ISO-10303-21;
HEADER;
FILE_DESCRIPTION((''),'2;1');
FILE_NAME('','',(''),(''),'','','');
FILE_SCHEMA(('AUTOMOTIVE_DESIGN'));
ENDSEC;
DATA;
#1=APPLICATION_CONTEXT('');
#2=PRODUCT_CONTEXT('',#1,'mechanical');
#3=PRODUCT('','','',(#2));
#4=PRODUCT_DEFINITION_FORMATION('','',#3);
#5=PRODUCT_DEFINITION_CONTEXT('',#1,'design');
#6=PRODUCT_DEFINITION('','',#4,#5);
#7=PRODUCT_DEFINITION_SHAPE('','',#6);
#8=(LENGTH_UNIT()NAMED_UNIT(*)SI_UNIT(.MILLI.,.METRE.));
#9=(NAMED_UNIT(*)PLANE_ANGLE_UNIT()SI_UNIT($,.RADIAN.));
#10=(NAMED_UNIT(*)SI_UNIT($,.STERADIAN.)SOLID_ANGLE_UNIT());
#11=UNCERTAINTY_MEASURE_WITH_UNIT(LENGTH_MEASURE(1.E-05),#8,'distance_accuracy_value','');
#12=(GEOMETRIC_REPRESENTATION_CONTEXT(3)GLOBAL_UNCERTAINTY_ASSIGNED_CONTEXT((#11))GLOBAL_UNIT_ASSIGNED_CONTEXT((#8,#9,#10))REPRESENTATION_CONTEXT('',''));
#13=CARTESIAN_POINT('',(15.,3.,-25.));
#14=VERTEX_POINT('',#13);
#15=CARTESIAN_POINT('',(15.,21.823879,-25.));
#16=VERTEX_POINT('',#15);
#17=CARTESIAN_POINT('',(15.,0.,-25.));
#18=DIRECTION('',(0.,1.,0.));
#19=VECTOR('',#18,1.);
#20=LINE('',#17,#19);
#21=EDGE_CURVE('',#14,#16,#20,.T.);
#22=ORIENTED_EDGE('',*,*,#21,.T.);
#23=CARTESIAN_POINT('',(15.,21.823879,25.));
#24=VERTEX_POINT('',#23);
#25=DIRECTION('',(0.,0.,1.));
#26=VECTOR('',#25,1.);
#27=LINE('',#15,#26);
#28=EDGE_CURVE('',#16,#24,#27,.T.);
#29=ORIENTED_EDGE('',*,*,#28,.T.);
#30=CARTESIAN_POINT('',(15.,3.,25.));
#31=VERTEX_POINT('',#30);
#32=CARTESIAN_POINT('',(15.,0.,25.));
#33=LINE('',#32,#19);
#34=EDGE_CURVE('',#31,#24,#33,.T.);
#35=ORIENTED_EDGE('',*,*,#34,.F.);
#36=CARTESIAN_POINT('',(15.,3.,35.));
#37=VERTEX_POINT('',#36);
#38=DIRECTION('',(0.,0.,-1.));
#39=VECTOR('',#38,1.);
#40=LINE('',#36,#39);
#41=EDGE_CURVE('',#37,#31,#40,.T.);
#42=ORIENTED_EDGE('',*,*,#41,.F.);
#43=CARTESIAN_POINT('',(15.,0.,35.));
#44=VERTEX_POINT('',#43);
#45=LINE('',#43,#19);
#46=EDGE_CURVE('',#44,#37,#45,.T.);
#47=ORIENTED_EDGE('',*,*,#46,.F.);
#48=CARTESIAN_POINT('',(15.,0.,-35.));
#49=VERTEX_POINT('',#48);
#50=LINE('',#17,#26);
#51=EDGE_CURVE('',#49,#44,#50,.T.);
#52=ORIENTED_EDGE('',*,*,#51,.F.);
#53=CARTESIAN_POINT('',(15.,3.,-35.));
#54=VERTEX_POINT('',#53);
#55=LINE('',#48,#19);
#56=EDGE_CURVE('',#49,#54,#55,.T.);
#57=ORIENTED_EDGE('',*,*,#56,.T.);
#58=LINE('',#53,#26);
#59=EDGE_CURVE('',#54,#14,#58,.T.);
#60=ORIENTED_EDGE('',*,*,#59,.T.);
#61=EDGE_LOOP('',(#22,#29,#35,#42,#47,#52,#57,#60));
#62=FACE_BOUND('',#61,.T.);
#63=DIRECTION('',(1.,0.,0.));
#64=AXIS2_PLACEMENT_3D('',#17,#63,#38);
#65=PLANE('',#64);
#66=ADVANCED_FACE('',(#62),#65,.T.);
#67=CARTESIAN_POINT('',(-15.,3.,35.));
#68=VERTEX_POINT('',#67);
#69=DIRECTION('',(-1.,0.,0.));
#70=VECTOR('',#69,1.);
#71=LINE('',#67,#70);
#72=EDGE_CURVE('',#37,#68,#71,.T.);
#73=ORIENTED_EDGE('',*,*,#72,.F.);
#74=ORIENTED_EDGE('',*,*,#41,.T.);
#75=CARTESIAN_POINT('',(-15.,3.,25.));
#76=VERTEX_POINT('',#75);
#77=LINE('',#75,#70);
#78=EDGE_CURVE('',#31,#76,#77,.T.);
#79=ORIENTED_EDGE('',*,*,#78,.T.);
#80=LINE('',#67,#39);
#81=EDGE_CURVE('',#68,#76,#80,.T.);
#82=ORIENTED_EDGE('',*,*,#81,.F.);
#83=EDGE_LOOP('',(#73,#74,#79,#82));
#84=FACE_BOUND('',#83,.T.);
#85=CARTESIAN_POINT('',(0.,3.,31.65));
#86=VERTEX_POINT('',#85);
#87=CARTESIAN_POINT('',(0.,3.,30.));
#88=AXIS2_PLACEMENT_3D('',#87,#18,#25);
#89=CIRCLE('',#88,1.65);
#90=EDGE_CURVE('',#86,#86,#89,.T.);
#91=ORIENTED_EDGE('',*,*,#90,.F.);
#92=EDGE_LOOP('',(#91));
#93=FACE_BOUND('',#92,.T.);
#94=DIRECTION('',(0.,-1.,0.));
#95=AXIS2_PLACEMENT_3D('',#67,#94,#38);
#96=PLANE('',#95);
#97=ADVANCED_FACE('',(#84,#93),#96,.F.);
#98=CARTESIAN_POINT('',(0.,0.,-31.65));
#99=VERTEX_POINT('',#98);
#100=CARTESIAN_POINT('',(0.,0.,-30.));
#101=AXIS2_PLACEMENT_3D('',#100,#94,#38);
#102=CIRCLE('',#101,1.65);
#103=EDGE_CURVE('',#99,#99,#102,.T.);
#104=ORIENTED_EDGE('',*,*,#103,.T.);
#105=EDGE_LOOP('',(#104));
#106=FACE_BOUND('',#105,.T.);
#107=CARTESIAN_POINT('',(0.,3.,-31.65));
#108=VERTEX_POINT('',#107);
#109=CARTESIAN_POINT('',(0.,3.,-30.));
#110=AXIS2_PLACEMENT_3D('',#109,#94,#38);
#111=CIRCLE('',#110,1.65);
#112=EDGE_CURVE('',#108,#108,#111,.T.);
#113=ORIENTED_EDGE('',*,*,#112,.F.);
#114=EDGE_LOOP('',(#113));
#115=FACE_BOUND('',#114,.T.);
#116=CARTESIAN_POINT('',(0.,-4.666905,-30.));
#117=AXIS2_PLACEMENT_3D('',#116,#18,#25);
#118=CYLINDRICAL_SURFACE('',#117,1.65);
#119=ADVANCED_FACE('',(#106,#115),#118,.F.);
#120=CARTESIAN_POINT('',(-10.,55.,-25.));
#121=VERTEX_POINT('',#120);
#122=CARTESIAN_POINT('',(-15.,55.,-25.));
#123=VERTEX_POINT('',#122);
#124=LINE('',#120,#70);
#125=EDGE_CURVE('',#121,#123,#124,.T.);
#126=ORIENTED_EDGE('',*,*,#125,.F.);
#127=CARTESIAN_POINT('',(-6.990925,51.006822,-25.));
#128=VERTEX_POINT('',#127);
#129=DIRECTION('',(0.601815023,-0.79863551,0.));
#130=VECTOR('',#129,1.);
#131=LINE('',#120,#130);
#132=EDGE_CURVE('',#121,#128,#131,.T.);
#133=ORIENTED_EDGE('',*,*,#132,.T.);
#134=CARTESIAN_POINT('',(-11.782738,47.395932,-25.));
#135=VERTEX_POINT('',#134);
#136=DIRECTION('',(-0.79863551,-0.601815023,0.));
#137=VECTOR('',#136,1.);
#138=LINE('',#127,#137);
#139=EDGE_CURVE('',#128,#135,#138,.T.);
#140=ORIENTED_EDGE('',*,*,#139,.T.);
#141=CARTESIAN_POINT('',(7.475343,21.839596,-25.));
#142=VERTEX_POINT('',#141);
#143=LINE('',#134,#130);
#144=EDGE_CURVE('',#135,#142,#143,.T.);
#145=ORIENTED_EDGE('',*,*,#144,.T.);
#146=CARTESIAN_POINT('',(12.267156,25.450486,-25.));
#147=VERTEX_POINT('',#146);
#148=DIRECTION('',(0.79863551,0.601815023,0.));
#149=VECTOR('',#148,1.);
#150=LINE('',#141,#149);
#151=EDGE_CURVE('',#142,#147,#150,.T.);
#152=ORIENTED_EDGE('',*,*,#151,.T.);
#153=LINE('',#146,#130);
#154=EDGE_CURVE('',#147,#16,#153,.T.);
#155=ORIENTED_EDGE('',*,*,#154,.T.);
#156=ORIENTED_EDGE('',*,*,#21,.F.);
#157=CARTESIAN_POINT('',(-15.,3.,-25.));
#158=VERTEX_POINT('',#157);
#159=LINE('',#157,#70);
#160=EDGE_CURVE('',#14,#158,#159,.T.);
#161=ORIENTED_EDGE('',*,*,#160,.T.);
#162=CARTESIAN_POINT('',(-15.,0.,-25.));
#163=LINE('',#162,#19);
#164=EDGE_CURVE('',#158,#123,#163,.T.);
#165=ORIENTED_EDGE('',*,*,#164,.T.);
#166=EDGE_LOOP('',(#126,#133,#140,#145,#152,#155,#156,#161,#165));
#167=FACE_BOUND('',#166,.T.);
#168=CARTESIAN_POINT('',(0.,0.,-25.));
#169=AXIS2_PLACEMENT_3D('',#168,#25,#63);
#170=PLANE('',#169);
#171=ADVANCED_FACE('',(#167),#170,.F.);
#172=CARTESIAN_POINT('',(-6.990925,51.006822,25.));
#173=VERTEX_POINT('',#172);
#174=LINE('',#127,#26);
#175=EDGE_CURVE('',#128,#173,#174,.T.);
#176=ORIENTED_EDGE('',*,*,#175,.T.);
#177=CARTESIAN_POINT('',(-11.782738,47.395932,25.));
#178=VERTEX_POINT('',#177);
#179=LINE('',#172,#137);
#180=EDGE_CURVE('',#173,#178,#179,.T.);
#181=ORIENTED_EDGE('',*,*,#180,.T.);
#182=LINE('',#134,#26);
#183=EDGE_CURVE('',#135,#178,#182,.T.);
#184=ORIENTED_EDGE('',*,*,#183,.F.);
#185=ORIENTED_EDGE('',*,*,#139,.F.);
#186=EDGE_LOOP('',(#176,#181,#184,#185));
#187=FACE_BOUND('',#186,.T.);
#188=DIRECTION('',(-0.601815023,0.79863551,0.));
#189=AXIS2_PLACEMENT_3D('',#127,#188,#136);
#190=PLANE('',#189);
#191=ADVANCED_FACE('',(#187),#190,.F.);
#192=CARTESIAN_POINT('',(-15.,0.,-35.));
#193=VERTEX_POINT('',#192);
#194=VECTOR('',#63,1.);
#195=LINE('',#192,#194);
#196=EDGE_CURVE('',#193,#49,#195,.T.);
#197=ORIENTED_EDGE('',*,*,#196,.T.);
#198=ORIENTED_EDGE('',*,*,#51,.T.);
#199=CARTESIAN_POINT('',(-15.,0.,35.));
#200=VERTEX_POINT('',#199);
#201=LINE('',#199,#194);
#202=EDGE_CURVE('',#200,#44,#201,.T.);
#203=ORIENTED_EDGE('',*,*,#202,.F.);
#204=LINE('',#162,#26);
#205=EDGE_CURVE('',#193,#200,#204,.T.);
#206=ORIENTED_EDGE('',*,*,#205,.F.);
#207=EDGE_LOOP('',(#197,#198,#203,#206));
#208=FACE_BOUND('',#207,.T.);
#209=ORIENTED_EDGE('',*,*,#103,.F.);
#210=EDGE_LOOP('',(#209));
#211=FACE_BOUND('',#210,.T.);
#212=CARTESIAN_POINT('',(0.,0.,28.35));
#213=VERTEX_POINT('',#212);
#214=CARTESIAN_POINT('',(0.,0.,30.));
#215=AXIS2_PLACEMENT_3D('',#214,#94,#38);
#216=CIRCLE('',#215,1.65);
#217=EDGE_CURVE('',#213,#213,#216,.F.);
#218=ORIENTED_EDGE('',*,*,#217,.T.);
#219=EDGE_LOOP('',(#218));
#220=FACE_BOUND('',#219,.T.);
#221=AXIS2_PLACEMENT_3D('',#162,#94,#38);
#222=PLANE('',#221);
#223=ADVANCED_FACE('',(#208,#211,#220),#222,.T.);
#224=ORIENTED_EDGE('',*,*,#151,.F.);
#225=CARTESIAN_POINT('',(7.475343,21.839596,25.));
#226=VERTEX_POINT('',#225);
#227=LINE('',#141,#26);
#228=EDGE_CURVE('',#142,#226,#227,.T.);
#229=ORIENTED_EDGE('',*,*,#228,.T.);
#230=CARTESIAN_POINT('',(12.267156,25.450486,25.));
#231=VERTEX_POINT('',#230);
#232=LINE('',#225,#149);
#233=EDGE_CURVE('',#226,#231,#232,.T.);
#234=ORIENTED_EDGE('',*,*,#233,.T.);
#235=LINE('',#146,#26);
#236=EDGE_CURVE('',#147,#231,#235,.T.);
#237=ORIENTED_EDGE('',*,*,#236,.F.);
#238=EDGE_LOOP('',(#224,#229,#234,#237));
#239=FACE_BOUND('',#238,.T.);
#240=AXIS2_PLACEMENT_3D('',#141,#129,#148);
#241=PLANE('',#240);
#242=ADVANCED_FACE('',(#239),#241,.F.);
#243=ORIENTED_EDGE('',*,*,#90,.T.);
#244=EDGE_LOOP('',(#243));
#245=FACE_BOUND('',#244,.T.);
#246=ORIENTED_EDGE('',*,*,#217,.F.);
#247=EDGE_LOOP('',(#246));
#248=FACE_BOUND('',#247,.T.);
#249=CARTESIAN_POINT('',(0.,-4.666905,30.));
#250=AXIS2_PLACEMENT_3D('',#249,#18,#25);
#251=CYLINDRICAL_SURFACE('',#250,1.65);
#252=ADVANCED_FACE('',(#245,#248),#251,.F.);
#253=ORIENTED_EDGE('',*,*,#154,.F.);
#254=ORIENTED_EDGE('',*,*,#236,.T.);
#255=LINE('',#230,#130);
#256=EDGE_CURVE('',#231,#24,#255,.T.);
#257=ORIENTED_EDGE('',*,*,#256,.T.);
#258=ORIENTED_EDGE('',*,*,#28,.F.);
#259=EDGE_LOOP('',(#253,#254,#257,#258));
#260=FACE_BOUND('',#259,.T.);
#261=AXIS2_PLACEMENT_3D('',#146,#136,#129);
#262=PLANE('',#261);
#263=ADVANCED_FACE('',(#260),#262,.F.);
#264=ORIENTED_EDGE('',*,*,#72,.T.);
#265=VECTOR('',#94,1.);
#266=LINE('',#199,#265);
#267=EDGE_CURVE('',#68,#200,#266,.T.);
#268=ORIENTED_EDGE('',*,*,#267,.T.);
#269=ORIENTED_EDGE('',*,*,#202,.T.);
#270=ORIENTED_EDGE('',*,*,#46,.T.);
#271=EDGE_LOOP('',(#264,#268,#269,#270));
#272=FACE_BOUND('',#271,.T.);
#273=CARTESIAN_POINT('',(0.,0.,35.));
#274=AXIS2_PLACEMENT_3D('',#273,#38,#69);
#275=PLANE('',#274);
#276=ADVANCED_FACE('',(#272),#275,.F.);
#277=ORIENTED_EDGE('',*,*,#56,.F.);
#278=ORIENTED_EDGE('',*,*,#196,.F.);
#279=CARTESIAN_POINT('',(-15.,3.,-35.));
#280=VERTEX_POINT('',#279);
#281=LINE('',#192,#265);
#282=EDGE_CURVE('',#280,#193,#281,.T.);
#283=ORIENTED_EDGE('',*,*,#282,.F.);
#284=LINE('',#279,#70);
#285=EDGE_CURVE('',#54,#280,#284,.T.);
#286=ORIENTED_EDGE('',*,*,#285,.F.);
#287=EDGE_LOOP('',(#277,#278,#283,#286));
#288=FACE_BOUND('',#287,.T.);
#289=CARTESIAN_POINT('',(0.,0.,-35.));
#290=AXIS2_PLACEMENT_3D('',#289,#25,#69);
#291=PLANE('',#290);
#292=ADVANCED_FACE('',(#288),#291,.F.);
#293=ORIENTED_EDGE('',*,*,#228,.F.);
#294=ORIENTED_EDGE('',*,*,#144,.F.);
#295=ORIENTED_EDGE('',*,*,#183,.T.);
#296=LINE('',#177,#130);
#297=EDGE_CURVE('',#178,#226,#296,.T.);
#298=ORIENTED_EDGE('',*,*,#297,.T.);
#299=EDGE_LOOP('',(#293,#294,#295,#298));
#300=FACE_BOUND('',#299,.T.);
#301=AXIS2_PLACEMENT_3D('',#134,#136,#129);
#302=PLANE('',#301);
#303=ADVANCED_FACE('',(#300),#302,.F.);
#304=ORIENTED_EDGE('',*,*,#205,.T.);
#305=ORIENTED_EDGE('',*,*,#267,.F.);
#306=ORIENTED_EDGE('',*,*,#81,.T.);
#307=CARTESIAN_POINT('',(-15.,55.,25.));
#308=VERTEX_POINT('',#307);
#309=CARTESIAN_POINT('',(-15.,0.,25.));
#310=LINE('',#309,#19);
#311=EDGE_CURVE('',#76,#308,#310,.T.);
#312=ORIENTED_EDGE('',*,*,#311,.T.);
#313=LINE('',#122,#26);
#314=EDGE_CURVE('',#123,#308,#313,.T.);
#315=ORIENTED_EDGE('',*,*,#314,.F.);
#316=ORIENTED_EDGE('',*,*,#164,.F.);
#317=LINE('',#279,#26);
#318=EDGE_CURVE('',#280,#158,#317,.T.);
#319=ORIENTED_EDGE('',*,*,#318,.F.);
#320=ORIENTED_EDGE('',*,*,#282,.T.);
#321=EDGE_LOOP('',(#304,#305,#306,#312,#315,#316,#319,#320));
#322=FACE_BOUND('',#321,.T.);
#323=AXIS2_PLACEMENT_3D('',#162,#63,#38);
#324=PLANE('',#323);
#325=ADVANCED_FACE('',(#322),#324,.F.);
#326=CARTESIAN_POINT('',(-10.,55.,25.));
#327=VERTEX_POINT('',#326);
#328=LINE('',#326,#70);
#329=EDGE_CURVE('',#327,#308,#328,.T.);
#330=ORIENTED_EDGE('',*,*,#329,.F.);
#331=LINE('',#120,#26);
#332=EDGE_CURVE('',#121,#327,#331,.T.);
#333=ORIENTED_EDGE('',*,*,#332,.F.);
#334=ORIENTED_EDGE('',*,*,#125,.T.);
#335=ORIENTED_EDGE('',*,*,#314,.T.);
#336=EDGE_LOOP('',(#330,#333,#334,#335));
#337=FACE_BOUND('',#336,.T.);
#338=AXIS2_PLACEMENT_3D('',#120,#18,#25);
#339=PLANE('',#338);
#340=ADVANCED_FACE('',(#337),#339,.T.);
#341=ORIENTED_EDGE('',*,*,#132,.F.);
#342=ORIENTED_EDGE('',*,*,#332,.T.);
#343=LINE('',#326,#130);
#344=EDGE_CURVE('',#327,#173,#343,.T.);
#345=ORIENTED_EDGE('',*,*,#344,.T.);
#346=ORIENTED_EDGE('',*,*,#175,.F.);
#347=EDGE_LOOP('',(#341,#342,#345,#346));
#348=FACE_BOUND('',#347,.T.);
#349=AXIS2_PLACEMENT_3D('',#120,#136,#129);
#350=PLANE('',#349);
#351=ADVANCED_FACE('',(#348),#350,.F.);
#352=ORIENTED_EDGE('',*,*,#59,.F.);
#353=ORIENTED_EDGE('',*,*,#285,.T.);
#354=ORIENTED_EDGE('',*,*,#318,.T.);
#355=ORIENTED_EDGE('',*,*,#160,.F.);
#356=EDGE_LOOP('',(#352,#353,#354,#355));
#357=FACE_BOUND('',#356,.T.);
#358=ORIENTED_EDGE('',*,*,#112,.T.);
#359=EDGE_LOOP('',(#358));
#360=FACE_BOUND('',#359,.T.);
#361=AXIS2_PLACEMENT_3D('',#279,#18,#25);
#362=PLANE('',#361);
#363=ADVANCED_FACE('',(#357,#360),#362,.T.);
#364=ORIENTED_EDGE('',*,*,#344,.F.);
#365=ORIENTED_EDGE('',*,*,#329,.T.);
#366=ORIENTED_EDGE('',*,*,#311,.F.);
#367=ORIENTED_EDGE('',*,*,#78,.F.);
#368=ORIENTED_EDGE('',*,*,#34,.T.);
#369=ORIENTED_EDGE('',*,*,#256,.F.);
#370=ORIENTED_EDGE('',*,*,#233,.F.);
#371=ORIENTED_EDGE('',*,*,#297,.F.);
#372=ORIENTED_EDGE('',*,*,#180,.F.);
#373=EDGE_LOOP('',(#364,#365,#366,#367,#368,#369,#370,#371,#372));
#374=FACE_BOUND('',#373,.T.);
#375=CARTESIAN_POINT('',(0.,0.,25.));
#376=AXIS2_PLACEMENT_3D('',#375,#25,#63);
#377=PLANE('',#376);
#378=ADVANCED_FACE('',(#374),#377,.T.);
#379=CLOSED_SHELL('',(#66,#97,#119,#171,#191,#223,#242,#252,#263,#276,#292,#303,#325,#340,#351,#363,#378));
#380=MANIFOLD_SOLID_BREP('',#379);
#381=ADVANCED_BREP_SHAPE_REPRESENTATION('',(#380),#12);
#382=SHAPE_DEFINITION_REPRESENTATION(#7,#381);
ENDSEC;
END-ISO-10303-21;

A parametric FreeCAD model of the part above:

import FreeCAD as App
import Part
import Sketcher

V = App.Vector
Q = App.Units.Quantity


def add_polygon(sketch, points):
    """Adds a closed chain of lines whose ends are joined by coincident constraints."""
    first, n = sketch.GeometryCount, len(points)
    for a, b in zip(points, points[1:] + points[:1]):
        sketch.addGeometry(Part.LineSegment(App.Vector(*a, 0), App.Vector(*b, 0)), False)
    for i in range(n):
        sketch.addConstraint(Sketcher.Constraint("Coincident", first + i, 2, first + (i + 1) % n, 1))

doc = App.newDocument("Part")
params = doc.addObject("Spreadsheet::Sheet", "Params")
for row, (alias, value) in enumerate([
    ("sketch1_width", "5 mm"),
    ("sketch1_width2", "30 mm"),
    ("sketch1_height", "55 mm"),
    ("sketch1_length", "6 mm"),
    ("sketch1_length2", "32 mm"),
    ("pad1_length", "25 mm"),
    ("pad1_length2", "25 mm"),
    ("sketch2_width", "30 mm"),
    ("sketch2_height", "3 mm"),
    ("pad2_length", "10 mm"),
    ("sketch3_diameter", "3.3 mm"),
    ("pocket1_length", "3 mm"),
], start=1):
    params.set(f"A{row}", alias)
    params.set(f"B{row}", "=" + value)
    params.setAlias(f"B{row}", alias)

body = doc.addObject("PartDesign::Body", "Body")

# Sketch on XY plane
sketch1 = doc.addObject("Sketcher::SketchObject", "Sketch")
body.addObject(sketch1)
sketch1.AttachmentSupport = (doc.XY_Plane, [""])
sketch1.MapMode = "FlatFace"
add_polygon(sketch1, [(-10, 55), (-15, 55), (-15, 0), (15, 0), (15, 21.8), (12.3, 25.5), (7.5, 21.8), (-11.8, 47.4), (-7, 51)])  # lines 0-8
sketch1.addConstraint([
    Sketcher.Constraint("Horizontal", 0),
    Sketcher.Constraint("Vertical", 1),
    Sketcher.Constraint("Horizontal", 2),
    Sketcher.Constraint("Vertical", 3),
    Sketcher.Constraint("Symmetric", 1, 2, 2, 2, -1, 1),
    Sketcher.Constraint("Perpendicular", 4, 5),
    Sketcher.Constraint("Perpendicular", 5, 6),
    Sketcher.Constraint("Perpendicular", 6, 7),
    Sketcher.Constraint("Perpendicular", 7, 8),
    Sketcher.Constraint("Equal", 5, 7),
    Sketcher.Constraint("DistanceX", 0, 2, 0, 1, 5.0),
    Sketcher.Constraint("DistanceX", 2, 1, 2, 2, 30.0),
    Sketcher.Constraint("DistanceY", 1, 2, 1, 1, 55.0),
    Sketcher.Constraint("Angle", 4, Q("127 deg")),
    Sketcher.Constraint("Distance", 5, 6.0),
    Sketcher.Constraint("Distance", 6, 32.0),
    Sketcher.Constraint("Distance", 8, 5.0),
])
sketch1.setExpression("Constraints[19]", "Params.sketch1_width")
sketch1.setExpression("Constraints[20]", "Params.sketch1_width2")
sketch1.setExpression("Constraints[21]", "Params.sketch1_height")
sketch1.setExpression("Constraints[23]", "Params.sketch1_length")
sketch1.setExpression("Constraints[24]", "Params.sketch1_length2")
pad1 = doc.addObject("PartDesign::Pad", "Pad")
body.addObject(pad1)
pad1.Profile = sketch1
pad1.Type = "TwoLengths"
pad1.setExpression("Length", "Params.pad1_length")
pad1.setExpression("Length2", "Params.pad1_length2")

# Sketch on XY plane
sketch2 = doc.addObject("Sketcher::SketchObject", "Sketch001")
body.addObject(sketch2)
sketch2.AttachmentSupport = (doc.XY_Plane, [""])
sketch2.MapMode = "FlatFace"
sketch2.AttachmentOffset = App.Placement(V(0, 0, 25), App.Rotation())
add_polygon(sketch2, [(-15, 3), (-15, 0), (15, 0), (15, 3)])  # lines 0-3
sketch2.addConstraint([
    Sketcher.Constraint("Vertical", 0),
    Sketcher.Constraint("Horizontal", 1),
    Sketcher.Constraint("Vertical", 2),
    Sketcher.Constraint("Horizontal", 3),
    Sketcher.Constraint("Symmetric", 0, 2, 1, 2, -1, 1),
    Sketcher.Constraint("DistanceX", 1, 1, 1, 2, 30.0),
    Sketcher.Constraint("DistanceY", 0, 2, 0, 1, 3.0),
])
sketch2.setExpression("Constraints[9]", "Params.sketch2_width")
sketch2.setExpression("Constraints[10]", "Params.sketch2_height")
pad2 = doc.addObject("PartDesign::Pad", "Pad001")
body.addObject(pad2)
pad2.Profile = sketch2
pad2.setExpression("Length", "Params.pad2_length")

# Sketch on XZ plane
sketch3 = doc.addObject("Sketcher::SketchObject", "Sketch002")
body.addObject(sketch3)
sketch3.AttachmentSupport = (doc.XZ_Plane, [""])
sketch3.MapMode = "FlatFace"
sketch3.AttachmentOffset = App.Placement(V(0, 0, -3), App.Rotation())
sketch3.addGeometry(Part.Circle(V(0, 30, 0), V(0, 0, 1), 1.6), False)
sketch3.addConstraint([
    Sketcher.Constraint("PointOnObject", 0, 3, -2),
    Sketcher.Constraint("Diameter", 0, 3.3),
    Sketcher.Constraint("DistanceY", -1, 1, 0, 3, 30.0),
])
sketch3.setExpression("Constraints[1]", "Params.sketch3_diameter")
pocket1 = doc.addObject("PartDesign::Pocket", "Pocket")
body.addObject(pocket1)
pocket1.Profile = sketch3
pocket1.setExpression("Length", "Params.pocket1_length")
pocket1.Reversed = True
doc.recompute()

mirrored = doc.addObject("PartDesign::Mirrored", "Mirrored")
body.addObject(mirrored)
mirrored.Originals = [pad2, pocket1]
mirrored.MirrorPlane = (doc.XY_Plane, [""])
body.Tip = mirrored

doc.recompute()
